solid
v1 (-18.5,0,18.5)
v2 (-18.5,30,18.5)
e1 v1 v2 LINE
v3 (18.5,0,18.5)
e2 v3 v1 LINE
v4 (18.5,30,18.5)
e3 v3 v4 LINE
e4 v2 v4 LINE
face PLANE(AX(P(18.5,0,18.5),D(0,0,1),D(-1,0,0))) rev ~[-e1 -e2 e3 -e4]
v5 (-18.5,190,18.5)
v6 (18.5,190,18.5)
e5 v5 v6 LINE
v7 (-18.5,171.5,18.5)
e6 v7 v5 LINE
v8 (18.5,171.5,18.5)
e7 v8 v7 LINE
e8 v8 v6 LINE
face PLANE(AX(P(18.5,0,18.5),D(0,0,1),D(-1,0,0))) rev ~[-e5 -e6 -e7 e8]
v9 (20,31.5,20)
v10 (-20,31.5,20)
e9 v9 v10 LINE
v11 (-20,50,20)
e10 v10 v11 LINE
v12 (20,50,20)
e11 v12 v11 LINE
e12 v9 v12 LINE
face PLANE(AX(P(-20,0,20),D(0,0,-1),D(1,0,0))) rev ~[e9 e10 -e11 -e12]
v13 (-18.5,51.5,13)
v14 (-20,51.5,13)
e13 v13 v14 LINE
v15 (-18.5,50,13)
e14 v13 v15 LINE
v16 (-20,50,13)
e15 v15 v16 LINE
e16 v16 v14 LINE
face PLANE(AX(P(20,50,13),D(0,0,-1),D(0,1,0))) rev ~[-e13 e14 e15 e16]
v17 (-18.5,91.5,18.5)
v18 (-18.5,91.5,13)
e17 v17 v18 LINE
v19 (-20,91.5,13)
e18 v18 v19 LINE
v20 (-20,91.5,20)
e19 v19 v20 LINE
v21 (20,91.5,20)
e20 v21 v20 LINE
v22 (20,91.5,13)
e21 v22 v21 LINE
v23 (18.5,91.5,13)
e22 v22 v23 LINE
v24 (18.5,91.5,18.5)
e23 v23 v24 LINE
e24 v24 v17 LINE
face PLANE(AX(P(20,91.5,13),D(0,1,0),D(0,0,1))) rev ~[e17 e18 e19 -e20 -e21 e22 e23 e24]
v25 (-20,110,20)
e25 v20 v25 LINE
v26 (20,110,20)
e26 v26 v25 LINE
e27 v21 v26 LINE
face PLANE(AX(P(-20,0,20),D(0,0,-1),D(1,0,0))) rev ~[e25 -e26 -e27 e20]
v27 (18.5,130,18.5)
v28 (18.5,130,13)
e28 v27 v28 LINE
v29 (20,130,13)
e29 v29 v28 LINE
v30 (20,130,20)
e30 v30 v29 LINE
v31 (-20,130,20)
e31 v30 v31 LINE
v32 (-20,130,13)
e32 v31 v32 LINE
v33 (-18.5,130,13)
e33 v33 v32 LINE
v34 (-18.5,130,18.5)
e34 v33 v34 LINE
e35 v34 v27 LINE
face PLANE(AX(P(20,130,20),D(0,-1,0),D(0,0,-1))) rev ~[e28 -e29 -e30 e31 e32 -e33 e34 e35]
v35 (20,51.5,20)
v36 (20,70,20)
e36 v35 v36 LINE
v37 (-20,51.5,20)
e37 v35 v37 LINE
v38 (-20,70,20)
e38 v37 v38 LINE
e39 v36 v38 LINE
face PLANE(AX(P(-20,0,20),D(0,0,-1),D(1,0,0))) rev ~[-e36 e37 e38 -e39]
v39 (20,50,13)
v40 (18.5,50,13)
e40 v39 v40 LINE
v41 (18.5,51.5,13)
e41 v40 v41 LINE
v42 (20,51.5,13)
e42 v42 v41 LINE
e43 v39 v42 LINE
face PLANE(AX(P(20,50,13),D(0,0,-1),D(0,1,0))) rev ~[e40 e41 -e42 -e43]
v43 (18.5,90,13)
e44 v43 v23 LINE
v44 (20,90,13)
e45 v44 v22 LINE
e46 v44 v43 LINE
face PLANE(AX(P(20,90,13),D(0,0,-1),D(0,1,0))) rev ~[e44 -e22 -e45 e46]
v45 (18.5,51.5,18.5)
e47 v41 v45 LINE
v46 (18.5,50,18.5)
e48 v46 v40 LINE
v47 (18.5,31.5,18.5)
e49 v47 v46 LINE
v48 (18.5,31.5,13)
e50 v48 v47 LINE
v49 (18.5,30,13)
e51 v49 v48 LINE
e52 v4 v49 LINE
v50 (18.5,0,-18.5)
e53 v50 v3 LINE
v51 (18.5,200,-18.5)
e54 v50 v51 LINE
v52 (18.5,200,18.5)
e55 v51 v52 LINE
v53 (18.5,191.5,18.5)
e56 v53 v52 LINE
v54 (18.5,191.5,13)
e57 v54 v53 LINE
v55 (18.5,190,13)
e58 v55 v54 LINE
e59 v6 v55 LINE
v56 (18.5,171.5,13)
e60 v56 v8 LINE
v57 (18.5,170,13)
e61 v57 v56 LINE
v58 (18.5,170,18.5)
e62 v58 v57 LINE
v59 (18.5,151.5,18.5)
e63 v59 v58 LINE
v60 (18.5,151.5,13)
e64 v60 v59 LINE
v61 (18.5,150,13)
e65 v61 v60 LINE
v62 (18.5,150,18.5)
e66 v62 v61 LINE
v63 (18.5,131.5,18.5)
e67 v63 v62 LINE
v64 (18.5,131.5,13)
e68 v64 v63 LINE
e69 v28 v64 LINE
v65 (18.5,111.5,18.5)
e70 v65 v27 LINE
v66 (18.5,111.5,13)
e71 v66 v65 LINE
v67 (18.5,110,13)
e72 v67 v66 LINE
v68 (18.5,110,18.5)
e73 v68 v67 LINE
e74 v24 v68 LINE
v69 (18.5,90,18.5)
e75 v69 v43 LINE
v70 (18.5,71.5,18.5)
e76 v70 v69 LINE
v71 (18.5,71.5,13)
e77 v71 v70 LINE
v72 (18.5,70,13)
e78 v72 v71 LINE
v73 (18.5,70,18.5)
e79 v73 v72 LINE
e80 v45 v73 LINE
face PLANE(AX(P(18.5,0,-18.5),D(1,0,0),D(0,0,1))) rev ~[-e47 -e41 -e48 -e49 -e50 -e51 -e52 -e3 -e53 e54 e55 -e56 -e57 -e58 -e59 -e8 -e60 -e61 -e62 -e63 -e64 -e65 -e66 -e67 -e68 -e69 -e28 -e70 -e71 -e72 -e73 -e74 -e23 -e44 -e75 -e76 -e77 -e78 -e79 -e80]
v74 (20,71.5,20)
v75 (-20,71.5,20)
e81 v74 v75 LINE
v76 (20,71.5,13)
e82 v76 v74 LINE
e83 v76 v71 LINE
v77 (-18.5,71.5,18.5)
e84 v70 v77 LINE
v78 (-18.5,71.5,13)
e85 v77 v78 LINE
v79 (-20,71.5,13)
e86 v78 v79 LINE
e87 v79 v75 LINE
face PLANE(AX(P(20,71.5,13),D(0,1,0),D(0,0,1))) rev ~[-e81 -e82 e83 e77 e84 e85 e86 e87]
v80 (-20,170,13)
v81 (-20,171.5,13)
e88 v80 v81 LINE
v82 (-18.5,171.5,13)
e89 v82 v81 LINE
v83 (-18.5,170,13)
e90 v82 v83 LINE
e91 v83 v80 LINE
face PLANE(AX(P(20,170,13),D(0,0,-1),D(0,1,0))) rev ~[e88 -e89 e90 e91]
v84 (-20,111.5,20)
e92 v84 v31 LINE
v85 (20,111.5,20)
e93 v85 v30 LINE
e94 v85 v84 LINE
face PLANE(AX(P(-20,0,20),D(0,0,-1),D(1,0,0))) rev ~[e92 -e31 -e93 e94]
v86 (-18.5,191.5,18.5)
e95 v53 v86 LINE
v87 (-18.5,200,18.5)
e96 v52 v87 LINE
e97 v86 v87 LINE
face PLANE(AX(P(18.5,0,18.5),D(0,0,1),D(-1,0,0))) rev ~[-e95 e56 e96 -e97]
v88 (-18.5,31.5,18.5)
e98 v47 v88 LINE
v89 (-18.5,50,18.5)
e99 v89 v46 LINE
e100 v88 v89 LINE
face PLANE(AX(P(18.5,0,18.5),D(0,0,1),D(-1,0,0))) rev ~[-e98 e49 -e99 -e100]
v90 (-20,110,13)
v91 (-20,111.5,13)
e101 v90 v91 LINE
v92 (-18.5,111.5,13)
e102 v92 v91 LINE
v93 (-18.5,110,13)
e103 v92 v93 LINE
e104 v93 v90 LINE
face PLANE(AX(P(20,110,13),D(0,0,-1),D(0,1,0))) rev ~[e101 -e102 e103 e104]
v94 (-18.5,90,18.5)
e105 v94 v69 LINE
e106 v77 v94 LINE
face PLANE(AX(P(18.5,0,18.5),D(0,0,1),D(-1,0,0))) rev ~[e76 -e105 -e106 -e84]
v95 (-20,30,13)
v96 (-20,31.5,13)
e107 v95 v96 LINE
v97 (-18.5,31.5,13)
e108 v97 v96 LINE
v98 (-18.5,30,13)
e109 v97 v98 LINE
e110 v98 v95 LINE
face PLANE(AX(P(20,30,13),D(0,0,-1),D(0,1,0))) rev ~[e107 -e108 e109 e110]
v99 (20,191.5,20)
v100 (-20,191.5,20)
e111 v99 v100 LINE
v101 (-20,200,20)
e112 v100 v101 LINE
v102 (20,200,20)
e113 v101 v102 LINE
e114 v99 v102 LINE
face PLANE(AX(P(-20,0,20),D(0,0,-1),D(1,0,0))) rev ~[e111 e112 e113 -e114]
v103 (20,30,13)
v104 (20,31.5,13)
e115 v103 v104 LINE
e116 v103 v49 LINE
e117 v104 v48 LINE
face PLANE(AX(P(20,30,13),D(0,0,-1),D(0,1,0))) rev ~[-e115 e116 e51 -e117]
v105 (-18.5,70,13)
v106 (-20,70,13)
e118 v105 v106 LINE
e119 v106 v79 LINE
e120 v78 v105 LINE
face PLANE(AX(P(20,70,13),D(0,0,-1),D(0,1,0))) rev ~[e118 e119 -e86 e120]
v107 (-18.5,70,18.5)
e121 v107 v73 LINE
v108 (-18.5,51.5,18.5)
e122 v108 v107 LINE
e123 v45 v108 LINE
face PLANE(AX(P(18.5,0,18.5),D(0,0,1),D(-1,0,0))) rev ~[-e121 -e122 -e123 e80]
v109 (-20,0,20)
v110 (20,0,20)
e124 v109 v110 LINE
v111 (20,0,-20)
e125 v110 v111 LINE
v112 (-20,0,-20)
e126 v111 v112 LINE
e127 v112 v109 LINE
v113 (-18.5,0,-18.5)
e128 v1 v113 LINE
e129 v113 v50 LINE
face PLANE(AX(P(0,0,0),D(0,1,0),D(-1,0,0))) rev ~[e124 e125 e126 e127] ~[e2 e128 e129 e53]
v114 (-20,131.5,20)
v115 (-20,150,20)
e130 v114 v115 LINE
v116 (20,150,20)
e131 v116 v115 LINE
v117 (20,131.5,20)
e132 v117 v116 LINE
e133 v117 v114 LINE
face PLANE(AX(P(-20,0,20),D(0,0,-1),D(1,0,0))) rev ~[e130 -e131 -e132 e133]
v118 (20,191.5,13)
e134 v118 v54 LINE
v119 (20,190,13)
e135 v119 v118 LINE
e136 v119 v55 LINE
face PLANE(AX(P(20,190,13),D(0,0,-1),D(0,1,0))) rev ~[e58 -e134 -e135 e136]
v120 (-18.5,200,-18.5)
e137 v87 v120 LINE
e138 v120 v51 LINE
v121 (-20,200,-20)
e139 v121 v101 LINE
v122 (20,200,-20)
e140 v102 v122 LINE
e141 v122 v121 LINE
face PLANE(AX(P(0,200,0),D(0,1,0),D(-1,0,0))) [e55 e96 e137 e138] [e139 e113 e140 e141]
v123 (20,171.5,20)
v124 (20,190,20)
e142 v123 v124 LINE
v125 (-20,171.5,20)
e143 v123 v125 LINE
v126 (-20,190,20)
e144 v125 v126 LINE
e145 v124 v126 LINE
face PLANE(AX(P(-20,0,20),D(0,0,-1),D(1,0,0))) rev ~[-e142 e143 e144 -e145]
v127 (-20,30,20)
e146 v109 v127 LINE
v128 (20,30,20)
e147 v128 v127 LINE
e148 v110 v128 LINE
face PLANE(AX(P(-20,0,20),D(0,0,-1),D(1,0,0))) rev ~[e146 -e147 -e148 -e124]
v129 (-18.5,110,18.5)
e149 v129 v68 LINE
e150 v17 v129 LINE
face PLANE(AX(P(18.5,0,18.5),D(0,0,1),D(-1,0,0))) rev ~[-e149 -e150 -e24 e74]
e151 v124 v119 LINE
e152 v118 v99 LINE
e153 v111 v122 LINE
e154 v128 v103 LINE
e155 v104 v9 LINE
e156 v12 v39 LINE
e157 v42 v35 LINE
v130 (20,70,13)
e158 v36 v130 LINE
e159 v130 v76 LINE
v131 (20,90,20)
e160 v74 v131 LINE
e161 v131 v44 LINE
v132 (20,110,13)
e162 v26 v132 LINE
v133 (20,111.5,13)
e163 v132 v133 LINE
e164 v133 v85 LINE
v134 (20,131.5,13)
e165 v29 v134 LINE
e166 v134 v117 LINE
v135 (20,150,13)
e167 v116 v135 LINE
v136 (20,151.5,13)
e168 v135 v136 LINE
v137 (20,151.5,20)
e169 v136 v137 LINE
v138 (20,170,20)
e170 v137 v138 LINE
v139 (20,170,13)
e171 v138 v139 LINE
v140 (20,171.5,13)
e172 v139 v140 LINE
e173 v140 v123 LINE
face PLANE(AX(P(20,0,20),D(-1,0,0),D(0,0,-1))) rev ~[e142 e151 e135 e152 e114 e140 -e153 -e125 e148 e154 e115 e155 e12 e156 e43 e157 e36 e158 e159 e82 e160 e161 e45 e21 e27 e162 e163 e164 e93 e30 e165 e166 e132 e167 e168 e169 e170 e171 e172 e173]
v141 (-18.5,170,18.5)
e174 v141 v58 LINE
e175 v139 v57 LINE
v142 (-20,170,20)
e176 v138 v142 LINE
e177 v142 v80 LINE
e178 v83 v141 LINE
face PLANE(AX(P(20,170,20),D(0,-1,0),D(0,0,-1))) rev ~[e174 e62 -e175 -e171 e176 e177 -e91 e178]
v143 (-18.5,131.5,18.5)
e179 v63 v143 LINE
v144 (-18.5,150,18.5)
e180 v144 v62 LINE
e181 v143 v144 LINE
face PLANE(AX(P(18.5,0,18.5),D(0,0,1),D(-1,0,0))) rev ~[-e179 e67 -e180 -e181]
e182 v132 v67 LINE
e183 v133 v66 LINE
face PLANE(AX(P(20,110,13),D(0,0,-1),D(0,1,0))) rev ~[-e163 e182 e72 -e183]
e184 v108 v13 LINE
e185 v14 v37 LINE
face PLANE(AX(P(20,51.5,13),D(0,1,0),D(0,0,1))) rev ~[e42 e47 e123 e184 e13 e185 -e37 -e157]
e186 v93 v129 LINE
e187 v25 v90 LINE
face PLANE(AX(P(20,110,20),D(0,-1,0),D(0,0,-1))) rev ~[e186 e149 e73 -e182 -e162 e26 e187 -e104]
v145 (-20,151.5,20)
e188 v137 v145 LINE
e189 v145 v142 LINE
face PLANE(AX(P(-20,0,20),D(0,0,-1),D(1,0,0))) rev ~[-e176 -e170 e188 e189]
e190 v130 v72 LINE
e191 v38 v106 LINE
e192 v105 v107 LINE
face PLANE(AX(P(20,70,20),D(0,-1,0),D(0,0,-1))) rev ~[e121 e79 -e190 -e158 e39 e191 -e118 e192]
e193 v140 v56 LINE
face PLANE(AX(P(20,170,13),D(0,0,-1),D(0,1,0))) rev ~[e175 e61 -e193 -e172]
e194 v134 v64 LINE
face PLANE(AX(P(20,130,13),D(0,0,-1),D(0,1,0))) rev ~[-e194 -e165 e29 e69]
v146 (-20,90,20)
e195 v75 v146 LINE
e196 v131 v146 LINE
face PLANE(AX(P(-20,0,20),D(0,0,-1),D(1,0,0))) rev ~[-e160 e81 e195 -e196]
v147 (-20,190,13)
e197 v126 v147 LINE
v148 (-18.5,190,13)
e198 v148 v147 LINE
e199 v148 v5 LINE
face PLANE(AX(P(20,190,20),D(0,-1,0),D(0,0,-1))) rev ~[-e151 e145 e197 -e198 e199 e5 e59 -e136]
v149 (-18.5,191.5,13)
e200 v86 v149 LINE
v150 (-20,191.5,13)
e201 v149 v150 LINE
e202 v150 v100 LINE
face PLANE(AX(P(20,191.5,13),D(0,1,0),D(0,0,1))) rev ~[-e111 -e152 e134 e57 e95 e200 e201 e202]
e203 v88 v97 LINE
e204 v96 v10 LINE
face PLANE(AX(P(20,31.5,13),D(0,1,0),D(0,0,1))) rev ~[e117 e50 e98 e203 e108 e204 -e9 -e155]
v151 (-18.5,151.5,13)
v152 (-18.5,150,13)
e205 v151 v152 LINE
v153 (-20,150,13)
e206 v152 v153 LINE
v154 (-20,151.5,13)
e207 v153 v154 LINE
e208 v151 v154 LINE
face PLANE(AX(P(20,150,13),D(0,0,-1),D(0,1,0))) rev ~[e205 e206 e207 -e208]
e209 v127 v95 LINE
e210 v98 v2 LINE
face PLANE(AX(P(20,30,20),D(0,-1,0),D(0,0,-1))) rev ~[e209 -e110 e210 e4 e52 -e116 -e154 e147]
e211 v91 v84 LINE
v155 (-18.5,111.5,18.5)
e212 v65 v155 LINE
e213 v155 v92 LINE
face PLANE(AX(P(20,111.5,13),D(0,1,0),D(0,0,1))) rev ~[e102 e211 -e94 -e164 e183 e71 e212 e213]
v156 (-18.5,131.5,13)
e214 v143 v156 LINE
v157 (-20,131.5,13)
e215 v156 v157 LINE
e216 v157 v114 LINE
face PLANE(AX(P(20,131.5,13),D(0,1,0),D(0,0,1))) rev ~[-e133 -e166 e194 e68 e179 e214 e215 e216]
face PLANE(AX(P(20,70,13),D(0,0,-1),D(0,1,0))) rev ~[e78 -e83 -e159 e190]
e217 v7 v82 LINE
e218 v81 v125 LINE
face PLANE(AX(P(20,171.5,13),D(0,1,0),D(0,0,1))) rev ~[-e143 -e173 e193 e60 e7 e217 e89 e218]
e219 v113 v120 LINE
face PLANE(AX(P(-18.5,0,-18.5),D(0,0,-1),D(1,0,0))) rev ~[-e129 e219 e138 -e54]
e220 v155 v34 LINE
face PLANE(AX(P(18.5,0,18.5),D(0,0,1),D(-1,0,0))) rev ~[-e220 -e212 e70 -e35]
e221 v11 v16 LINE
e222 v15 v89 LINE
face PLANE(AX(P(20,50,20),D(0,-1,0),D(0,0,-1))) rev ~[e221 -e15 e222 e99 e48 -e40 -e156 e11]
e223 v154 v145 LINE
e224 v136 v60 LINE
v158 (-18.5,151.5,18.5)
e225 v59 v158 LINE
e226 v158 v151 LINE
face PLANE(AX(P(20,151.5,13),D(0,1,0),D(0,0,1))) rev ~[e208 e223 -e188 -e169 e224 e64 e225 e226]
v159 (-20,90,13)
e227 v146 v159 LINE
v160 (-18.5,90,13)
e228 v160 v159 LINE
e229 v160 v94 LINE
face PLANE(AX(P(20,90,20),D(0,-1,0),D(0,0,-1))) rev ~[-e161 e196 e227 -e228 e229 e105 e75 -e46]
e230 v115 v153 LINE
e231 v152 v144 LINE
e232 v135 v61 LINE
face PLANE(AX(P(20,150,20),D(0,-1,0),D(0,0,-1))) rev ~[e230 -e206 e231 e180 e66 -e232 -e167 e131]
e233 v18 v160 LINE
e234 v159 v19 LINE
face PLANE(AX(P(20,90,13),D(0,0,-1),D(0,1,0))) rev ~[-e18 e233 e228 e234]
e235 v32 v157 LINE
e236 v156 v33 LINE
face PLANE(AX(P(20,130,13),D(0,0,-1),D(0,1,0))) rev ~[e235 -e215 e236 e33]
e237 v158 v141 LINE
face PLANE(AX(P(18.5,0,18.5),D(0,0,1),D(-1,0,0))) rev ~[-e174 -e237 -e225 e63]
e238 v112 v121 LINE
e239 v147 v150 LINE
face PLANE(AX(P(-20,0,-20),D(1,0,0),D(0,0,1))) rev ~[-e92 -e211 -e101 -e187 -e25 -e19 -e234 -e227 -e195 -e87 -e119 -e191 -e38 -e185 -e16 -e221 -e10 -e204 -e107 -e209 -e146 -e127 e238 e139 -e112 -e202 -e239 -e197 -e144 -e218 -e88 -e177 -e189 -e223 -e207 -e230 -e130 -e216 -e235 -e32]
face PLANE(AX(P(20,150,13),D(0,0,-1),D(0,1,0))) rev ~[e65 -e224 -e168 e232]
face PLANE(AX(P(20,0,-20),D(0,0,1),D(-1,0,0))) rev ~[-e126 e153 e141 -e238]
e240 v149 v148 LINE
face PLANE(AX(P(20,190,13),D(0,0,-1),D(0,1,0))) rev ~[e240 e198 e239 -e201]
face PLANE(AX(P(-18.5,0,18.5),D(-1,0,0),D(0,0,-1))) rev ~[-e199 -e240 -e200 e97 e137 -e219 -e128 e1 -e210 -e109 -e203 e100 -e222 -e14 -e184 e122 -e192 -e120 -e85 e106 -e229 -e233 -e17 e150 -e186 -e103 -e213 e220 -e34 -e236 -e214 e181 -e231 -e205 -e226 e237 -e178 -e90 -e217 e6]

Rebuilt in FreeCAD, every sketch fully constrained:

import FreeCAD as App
import Part
import Sketcher
from FreeCAD import Vector
Q = App.Units.Quantity


def add_polygon(sketch, points):
    """Adds a closed chain of lines whose ends are joined by coincident constraints."""
    first, n = sketch.GeometryCount, len(points)
    for a, b in zip(points, points[1:] + points[:1]):
        sketch.addGeometry(Part.LineSegment(App.Vector(*a, 0), App.Vector(*b, 0)), False)
    for i in range(n):
        sketch.addConstraint(Sketcher.Constraint("Coincident", first + i, 2, first + (i + 1) % n, 1))

doc = App.newDocument("Part")
body = doc.addObject("PartDesign::Body", "Body")

sketch1 = body.newObject("Sketcher::SketchObject", "Sketch")
sketch1.AttachmentSupport = (doc.getObject("XZ_Plane"), [""])
sketch1.MapMode = "FlatFace"
add_polygon(sketch1, [(-20, -20), (-20, 20), (20, 20), (20, -20)])
add_polygon(sketch1, [(18.5, -18.5), (18.5, 18.5), (-18.5, 18.5), (-18.5, -18.5)])
sketch1.addConstraint(Sketcher.Constraint("Vertical", 0))
sketch1.addConstraint(Sketcher.Constraint("Horizontal", 1))
sketch1.addConstraint(Sketcher.Constraint("Vertical", 2))
sketch1.addConstraint(Sketcher.Constraint("Horizontal", 3))
sketch1.addConstraint(Sketcher.Constraint("Vertical", 4))
sketch1.addConstraint(Sketcher.Constraint("Horizontal", 5))
sketch1.addConstraint(Sketcher.Constraint("Vertical", 6))
sketch1.addConstraint(Sketcher.Constraint("Horizontal", 7))
sketch1.addConstraint(Sketcher.Constraint("Symmetric", 0, 2, 2, 2, -1, 1))
sketch1.addConstraint(Sketcher.Constraint("Symmetric", 4, 2, 6, 2, -1, 1))
sketch1.addConstraint(Sketcher.Constraint("Equal", 3, 0))
sketch1.addConstraint(Sketcher.Constraint("Equal", 7, 4))
sketch1.addConstraint(Sketcher.Constraint("DistanceX", 1, 1, 1, 2, Q("40 mm")))
sketch1.addConstraint(Sketcher.Constraint("DistanceX", 4, 2, 1, 2, Q("1.5 mm")))
pad1 = body.newObject("PartDesign::Pad", "Pad")
pad1.Profile = sketch1
pad1.Length = 200
pad1.Reversed = True

sketch2 = body.newObject("Sketcher::SketchObject", "Sketch001")
sketch2.AttachmentSupport = (doc.getObject("YZ_Plane"), [""])
sketch2.MapMode = "FlatFace"
sketch2.AttachmentOffset = App.Placement(Vector(0, 0, 20), App.Rotation())
add_polygon(sketch2, [(31.5, 20), (30, 20), (30, 13), (31.5, 13)])
sketch2.addConstraint(Sketcher.Constraint("Horizontal", 0))
sketch2.addConstraint(Sketcher.Constraint("Vertical", 1))
sketch2.addConstraint(Sketcher.Constraint("Horizontal", 2))
sketch2.addConstraint(Sketcher.Constraint("Vertical", 3))
sketch2.addConstraint(Sketcher.Constraint("DistanceY", 1, 2, 1, 1, Q("7 mm")))
sketch2.addConstraint(Sketcher.Constraint("DistanceX", 0, 2, 0, 1, Q("1.5 mm")))
sketch2.addConstraint(Sketcher.Constraint("DistanceX", -1, 1, 0, 2, Q("30 mm")))
sketch2.addConstraint(Sketcher.Constraint("DistanceY", -1, 1, 0, 2, Q("20 mm")))
pocket1 = body.newObject("PartDesign::Pocket", "Pocket")
pocket1.Profile = sketch2
pocket1.Type = "ThroughAll"
doc.recompute()

linearpattern = body.newObject("PartDesign::LinearPattern", "LinearPattern")
linearpattern.Originals = [pocket1]
linearpattern.Direction = (doc.getObject("Y_Axis"), [""])
linearpattern.Mode = "offset"
linearpattern.Offset = 20
linearpattern.Occurrences = 49
body.Tip = linearpattern

doc.recompute()
